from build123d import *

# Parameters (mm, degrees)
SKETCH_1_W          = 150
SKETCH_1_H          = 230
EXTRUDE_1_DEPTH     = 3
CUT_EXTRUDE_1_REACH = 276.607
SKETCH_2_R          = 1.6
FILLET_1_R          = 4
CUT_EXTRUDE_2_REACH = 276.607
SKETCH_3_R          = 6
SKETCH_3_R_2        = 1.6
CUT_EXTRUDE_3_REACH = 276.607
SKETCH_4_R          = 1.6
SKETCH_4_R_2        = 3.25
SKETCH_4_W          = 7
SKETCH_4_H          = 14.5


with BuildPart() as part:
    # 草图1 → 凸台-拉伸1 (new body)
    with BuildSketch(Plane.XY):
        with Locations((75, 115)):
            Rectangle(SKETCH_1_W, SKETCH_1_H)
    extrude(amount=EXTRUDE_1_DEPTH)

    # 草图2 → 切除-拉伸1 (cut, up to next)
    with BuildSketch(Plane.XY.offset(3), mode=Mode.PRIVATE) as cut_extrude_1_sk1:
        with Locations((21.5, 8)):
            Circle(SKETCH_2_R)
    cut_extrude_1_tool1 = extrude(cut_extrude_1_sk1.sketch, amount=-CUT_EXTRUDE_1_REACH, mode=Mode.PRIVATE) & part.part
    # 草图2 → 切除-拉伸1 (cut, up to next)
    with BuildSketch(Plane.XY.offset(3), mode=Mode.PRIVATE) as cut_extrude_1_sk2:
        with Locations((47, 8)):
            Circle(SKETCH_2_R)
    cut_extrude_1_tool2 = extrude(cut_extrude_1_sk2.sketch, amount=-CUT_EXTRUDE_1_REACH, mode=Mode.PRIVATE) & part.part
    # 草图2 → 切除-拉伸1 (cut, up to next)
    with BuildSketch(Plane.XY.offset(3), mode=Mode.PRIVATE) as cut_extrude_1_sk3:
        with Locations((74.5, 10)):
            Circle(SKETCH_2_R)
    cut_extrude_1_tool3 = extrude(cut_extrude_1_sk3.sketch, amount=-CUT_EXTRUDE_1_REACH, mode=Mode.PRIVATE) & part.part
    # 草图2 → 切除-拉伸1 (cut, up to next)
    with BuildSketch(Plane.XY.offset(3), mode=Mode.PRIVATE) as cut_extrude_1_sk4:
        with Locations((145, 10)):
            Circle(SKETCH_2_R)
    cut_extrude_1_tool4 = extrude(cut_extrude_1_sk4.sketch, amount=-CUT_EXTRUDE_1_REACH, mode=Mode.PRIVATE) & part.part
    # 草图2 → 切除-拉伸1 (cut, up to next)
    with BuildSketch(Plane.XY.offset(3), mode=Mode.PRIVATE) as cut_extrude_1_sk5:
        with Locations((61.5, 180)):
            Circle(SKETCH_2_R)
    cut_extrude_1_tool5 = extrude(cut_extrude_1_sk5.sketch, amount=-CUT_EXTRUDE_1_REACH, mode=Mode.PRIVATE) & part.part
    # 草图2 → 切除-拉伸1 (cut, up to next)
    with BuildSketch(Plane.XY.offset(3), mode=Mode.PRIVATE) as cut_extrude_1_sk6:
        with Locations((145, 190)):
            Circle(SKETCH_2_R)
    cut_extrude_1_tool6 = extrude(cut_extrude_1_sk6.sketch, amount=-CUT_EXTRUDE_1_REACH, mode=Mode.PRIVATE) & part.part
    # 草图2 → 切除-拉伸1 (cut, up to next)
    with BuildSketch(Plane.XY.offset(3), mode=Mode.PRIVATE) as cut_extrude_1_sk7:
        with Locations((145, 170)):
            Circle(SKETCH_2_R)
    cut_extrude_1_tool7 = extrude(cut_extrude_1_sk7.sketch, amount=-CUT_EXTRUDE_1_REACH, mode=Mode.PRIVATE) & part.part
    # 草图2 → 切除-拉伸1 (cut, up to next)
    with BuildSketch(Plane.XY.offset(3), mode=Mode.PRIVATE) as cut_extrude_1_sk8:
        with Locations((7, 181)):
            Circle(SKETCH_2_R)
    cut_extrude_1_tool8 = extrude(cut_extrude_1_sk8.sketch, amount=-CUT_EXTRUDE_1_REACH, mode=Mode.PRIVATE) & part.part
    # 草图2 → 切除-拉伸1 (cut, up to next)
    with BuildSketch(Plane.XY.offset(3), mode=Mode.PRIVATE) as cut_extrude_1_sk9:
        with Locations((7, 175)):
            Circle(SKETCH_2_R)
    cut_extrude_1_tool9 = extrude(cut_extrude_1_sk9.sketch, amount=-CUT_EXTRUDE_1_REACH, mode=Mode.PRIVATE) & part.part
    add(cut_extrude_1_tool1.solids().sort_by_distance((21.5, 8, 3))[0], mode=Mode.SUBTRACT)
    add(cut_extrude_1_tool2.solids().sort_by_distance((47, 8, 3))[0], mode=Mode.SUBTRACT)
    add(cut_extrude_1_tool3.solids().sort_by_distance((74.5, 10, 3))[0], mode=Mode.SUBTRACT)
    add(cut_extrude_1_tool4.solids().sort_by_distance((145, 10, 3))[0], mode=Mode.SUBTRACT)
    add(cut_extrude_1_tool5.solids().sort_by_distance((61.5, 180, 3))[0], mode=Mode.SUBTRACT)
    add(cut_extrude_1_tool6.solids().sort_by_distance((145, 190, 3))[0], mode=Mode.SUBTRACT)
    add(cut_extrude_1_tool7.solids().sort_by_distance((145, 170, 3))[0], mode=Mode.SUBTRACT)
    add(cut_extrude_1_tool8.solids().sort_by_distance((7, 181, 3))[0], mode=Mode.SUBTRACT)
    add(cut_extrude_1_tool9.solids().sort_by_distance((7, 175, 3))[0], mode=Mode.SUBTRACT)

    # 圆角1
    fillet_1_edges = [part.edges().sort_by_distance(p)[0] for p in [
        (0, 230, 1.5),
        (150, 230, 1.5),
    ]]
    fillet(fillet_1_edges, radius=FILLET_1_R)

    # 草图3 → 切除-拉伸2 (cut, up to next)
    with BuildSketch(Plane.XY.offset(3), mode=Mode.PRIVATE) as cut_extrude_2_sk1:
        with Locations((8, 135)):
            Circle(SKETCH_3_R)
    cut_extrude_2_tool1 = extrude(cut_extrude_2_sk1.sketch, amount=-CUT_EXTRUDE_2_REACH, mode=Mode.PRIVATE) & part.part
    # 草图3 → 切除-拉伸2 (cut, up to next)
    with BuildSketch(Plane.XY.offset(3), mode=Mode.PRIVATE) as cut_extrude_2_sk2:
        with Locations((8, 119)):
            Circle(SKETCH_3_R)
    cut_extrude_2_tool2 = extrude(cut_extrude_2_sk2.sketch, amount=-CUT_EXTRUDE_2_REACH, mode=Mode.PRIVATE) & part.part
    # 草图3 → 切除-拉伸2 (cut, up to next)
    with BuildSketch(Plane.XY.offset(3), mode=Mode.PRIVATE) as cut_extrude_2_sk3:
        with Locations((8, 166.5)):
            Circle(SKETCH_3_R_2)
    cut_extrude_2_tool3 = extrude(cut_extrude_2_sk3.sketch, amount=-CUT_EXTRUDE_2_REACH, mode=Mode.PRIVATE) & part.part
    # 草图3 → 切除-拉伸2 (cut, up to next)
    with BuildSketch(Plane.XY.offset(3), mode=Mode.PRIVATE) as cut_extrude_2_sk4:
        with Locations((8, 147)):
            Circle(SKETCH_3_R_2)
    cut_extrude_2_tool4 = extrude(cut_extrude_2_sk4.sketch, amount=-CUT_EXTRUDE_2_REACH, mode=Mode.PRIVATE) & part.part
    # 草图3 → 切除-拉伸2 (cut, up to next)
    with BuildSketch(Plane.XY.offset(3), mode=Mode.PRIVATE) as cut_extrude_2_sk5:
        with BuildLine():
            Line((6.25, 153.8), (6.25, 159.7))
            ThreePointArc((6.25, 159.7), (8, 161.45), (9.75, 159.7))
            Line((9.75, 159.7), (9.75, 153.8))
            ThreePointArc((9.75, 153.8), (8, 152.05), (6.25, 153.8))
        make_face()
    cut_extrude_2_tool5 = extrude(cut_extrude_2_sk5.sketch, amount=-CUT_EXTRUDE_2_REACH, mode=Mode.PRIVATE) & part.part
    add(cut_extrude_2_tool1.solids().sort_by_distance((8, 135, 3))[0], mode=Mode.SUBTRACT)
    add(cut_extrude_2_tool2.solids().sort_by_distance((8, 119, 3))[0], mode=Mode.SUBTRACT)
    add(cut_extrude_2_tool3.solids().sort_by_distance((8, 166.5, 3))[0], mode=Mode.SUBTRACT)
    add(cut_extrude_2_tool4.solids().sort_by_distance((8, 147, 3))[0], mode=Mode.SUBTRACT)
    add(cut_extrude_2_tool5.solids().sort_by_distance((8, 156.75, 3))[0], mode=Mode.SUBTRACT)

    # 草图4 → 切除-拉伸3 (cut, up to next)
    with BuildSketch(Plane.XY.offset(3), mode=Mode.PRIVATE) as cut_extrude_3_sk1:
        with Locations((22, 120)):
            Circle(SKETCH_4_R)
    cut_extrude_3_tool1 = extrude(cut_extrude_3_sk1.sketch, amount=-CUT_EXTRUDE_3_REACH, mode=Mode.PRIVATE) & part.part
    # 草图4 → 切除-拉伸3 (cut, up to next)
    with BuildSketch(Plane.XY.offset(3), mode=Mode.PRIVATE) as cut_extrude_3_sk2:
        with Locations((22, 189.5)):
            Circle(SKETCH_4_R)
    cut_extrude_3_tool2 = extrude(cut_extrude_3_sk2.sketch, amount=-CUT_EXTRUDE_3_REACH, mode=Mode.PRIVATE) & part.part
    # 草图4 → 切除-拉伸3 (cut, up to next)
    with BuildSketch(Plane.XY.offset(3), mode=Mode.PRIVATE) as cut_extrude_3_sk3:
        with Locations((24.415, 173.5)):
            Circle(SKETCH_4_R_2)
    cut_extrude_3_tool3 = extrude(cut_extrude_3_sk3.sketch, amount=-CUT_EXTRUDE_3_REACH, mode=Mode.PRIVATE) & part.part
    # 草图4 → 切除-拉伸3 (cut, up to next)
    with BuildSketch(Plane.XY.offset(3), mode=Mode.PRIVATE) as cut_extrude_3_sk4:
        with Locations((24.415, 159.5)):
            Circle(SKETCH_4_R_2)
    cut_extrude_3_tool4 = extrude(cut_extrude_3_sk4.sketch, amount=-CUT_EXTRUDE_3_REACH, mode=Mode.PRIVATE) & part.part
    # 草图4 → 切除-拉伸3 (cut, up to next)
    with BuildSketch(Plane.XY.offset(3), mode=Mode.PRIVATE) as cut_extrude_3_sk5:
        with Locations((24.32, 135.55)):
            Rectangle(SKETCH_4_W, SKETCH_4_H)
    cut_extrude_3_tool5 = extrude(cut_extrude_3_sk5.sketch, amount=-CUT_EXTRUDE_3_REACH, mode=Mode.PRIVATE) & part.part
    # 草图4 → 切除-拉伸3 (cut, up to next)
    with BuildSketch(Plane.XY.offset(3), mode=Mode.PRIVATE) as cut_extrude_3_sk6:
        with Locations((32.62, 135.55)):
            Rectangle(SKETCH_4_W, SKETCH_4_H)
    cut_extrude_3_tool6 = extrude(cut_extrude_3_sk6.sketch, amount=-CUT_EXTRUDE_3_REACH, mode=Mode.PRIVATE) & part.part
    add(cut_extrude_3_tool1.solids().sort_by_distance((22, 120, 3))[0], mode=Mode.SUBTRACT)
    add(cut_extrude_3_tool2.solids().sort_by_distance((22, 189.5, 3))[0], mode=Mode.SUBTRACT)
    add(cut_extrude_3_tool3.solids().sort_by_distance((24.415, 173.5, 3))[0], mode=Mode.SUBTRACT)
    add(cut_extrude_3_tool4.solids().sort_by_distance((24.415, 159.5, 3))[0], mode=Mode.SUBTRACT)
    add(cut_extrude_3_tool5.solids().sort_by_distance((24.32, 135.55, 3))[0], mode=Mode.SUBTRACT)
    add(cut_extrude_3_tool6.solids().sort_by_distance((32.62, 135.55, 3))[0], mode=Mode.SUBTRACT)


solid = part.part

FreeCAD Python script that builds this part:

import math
import FreeCAD as App
import Part
import Sketcher
from FreeCAD import Vector


def edges_at(feature, points):
    """Names of the edges that pass closest to the given points."""
    edges = feature.Shape.Edges
    near = lambda p: min(range(len(edges)), key=lambda i: edges[i].distToShape(Part.Vertex(*p))[0])
    return sorted({f"Edge{near(p) + 1}" for p in points})


def add_polygon(sketch, points):
    """Adds a closed chain of lines whose ends are joined by coincident constraints."""
    first, n = sketch.GeometryCount, len(points)
    for a, b in zip(points, points[1:] + points[:1]):
        sketch.addGeometry(Part.LineSegment(App.Vector(*a, 0), App.Vector(*b, 0)), False)
    for i in range(n):
        sketch.addConstraint(Sketcher.Constraint("Coincident", first + i, 2, first + (i + 1) % n, 1))

doc = App.newDocument("Part")
body = doc.addObject("PartDesign::Body", "Body")

sketch1 = doc.addObject("Sketcher::SketchObject", "Sketch")
body.addObject(sketch1)
sketch1.AttachmentSupport = (doc.XY_Plane, [""])
sketch1.MapMode = "FlatFace"
add_polygon(sketch1, [(0, 230), (0, 0), (150, 0), (150, 230)])
sketch1.addConstraint(Sketcher.Constraint("Vertical", 0))
sketch1.addConstraint(Sketcher.Constraint("Horizontal", 1))
sketch1.addConstraint(Sketcher.Constraint("Vertical", 2))
sketch1.addConstraint(Sketcher.Constraint("Horizontal", 3))
sketch1.addConstraint(Sketcher.Constraint("Coincident", 0, 2, -1, 1))
sketch1.addConstraint(Sketcher.Constraint("DistanceX", 1, 1, 1, 2, 150.0))
sketch1.addConstraint(Sketcher.Constraint("DistanceY", 0, 2, 0, 1, 230.0))
pad1 = doc.addObject("PartDesign::Pad", "Pad")
body.addObject(pad1)
pad1.Profile = sketch1
pad1.Length = 3

sketch2 = doc.addObject("Sketcher::SketchObject", "Sketch001")
body.addObject(sketch2)
sketch2.AttachmentSupport = (doc.XY_Plane, [""])
sketch2.MapMode = "FlatFace"
sketch2.AttachmentOffset = App.Placement(Vector(0, 0, 3), App.Rotation())
sketch2.addGeometry(Part.Circle(Vector(21.5, 8, 0), Vector(0, 0, 1), 1.6), False)
sketch2.addConstraint(Sketcher.Constraint("Diameter", 0, 3.2))
sketch2.addConstraint(Sketcher.Constraint("DistanceY", -1, 1, 0, 3, 8.0))
sketch2.addConstraint(Sketcher.Constraint("DistanceX", -1, 1, 0, 3, 21.5))
pocket1 = doc.addObject("PartDesign::Pocket", "Pocket")
body.addObject(pocket1)
pocket1.Profile = sketch2
pocket1.Type = "UpToFirst"

sketch3 = doc.addObject("Sketcher::SketchObject", "Sketch002")
body.addObject(sketch3)
sketch3.AttachmentSupport = (doc.XY_Plane, [""])
sketch3.MapMode = "FlatFace"
sketch3.AttachmentOffset = App.Placement(Vector(0, 0, 3), App.Rotation())
sketch3.addGeometry(Part.Circle(Vector(47, 8, 0), Vector(0, 0, 1), 1.6), False)
sketch3.addConstraint(Sketcher.Constraint("Diameter", 0, 3.2))
sketch3.addConstraint(Sketcher.Constraint("DistanceX", -1, 1, 0, 3, 47.0))
sketch3.addConstraint(Sketcher.Constraint("DistanceY", -1, 1, 0, 3, 8.0))
pocket2 = doc.addObject("PartDesign::Pocket", "Pocket001")
body.addObject(pocket2)
pocket2.Profile = sketch3
pocket2.Type = "UpToFirst"

sketch4 = doc.addObject("Sketcher::SketchObject", "Sketch003")
body.addObject(sketch4)
sketch4.AttachmentSupport = (doc.XY_Plane, [""])
sketch4.MapMode = "FlatFace"
sketch4.AttachmentOffset = App.Placement(Vector(0, 0, 3), App.Rotation())
sketch4.addGeometry(Part.Circle(Vector(74.5, 10, 0), Vector(0, 0, 1), 1.6), False)
sketch4.addConstraint(Sketcher.Constraint("Diameter", 0, 3.2))
sketch4.addConstraint(Sketcher.Constraint("DistanceY", -1, 1, 0, 3, 10.0))
sketch4.addConstraint(Sketcher.Constraint("DistanceX", -1, 1, 0, 3, 74.5))
pocket3 = doc.addObject("PartDesign::Pocket", "Pocket002")
body.addObject(pocket3)
pocket3.Profile = sketch4
pocket3.Type = "UpToFirst"

sketch5 = doc.addObject("Sketcher::SketchObject", "Sketch004")
body.addObject(sketch5)
sketch5.AttachmentSupport = (doc.XY_Plane, [""])
sketch5.MapMode = "FlatFace"
sketch5.AttachmentOffset = App.Placement(Vector(0, 0, 3), App.Rotation())
sketch5.addGeometry(Part.Circle(Vector(145, 10, 0), Vector(0, 0, 1), 1.6), False)
sketch5.addConstraint(Sketcher.Constraint("Diameter", 0, 3.2))
sketch5.addConstraint(Sketcher.Constraint("DistanceX", -1, 1, 0, 3, 145.0))
sketch5.addConstraint(Sketcher.Constraint("DistanceY", -1, 1, 0, 3, 10.0))
pocket4 = doc.addObject("PartDesign::Pocket", "Pocket003")
body.addObject(pocket4)
pocket4.Profile = sketch5
pocket4.Type = "UpToFirst"

sketch6 = doc.addObject("Sketcher::SketchObject", "Sketch005")
body.addObject(sketch6)
sketch6.AttachmentSupport = (doc.XY_Plane, [""])
sketch6.MapMode = "FlatFace"
sketch6.AttachmentOffset = App.Placement(Vector(0, 0, 3), App.Rotation())
sketch6.addGeometry(Part.Circle(Vector(61.5, 180, 0), Vector(0, 0, 1), 1.6), False)
sketch6.addConstraint(Sketcher.Constraint("Diameter", 0, 3.2))
sketch6.addConstraint(Sketcher.Constraint("DistanceY", -1, 1, 0, 3, 180.0))
sketch6.addConstraint(Sketcher.Constraint("DistanceX", -1, 1, 0, 3, 61.5))
pocket5 = doc.addObject("PartDesign::Pocket", "Pocket004")
body.addObject(pocket5)
pocket5.Profile = sketch6
pocket5.Type = "UpToFirst"

sketch7 = doc.addObject("Sketcher::SketchObject", "Sketch006")
body.addObject(sketch7)
sketch7.AttachmentSupport = (doc.XY_Plane, [""])
sketch7.MapMode = "FlatFace"
sketch7.AttachmentOffset = App.Placement(Vector(0, 0, 3), App.Rotation())
sketch7.addGeometry(Part.Circle(Vector(145, 190, 0), Vector(0, 0, 1), 1.6), False)
sketch7.addConstraint(Sketcher.Constraint("Diameter", 0, 3.2))
sketch7.addConstraint(Sketcher.Constraint("DistanceX", -1, 1, 0, 3, 145.0))
sketch7.addConstraint(Sketcher.Constraint("DistanceY", -1, 1, 0, 3, 190.0))
pocket6 = doc.addObject("PartDesign::Pocket", "Pocket005")
body.addObject(pocket6)
pocket6.Profile = sketch7
pocket6.Type = "UpToFirst"

sketch8 = doc.addObject("Sketcher::SketchObject", "Sketch007")
body.addObject(sketch8)
sketch8.AttachmentSupport = (doc.XY_Plane, [""])
sketch8.MapMode = "FlatFace"
sketch8.AttachmentOffset = App.Placement(Vector(0, 0, 3), App.Rotation())
sketch8.addGeometry(Part.Circle(Vector(145, 170, 0), Vector(0, 0, 1), 1.6), False)
sketch8.addConstraint(Sketcher.Constraint("Diameter", 0, 3.2))
sketch8.addConstraint(Sketcher.Constraint("DistanceX", -1, 1, 0, 3, 145.0))
sketch8.addConstraint(Sketcher.Constraint("DistanceY", -1, 1, 0, 3, 170.0))
pocket7 = doc.addObject("PartDesign::Pocket", "Pocket006")
body.addObject(pocket7)
pocket7.Profile = sketch8
pocket7.Type = "UpToFirst"

sketch9 = doc.addObject("Sketcher::SketchObject", "Sketch008")
body.addObject(sketch9)
sketch9.AttachmentSupport = (doc.XY_Plane, [""])
sketch9.MapMode = "FlatFace"
sketch9.AttachmentOffset = App.Placement(Vector(0, 0, 3), App.Rotation())
sketch9.addGeometry(Part.Circle(Vector(7, 181, 0), Vector(0, 0, 1), 1.6), False)
sketch9.addConstraint(Sketcher.Constraint("Diameter", 0, 3.2))
sketch9.addConstraint(Sketcher.Constraint("DistanceX", -1, 1, 0, 3, 7.0))
sketch9.addConstraint(Sketcher.Constraint("DistanceY", -1, 1, 0, 3, 181.0))
pocket8 = doc.addObject("PartDesign::Pocket", "Pocket007")
body.addObject(pocket8)
pocket8.Profile = sketch9
pocket8.Type = "UpToFirst"

sketch10 = doc.addObject("Sketcher::SketchObject", "Sketch009")
body.addObject(sketch10)
sketch10.AttachmentSupport = (doc.XY_Plane, [""])
sketch10.MapMode = "FlatFace"
sketch10.AttachmentOffset = App.Placement(Vector(0, 0, 3), App.Rotation())
sketch10.addGeometry(Part.Circle(Vector(7, 175, 0), Vector(0, 0, 1), 1.6), False)
sketch10.addConstraint(Sketcher.Constraint("Diameter", 0, 3.2))
sketch10.addConstraint(Sketcher.Constraint("DistanceX", -1, 1, 0, 3, 7.0))
sketch10.addConstraint(Sketcher.Constraint("DistanceY", -1, 1, 0, 3, 175.0))
pocket9 = doc.addObject("PartDesign::Pocket", "Pocket008")
body.addObject(pocket9)
pocket9.Profile = sketch10
pocket9.Type = "UpToFirst"
doc.recompute()

fillet = doc.addObject("PartDesign::Fillet", "Fillet")
body.addObject(fillet)
fillet.Base = (pocket9, edges_at(pocket9, [(0, 230, 1.5), (150, 230, 1.5)]))
fillet.Radius = 4

sketch11 = doc.addObject("Sketcher::SketchObject", "Sketch010")
body.addObject(sketch11)
sketch11.AttachmentSupport = (doc.XY_Plane, [""])
sketch11.MapMode = "FlatFace"
sketch11.AttachmentOffset = App.Placement(Vector(0, 0, 3), App.Rotation())
sketch11.addGeometry(Part.Circle(Vector(8, 135, 0), Vector(0, 0, 1), 6), False)
sketch11.addConstraint(Sketcher.Constraint("Diameter", 0, 12.0))
sketch11.addConstraint(Sketcher.Constraint("DistanceX", -1, 1, 0, 3, 8.0))
sketch11.addConstraint(Sketcher.Constraint("DistanceY", -1, 1, 0, 3, 135.0))
pocket10 = doc.addObject("PartDesign::Pocket", "Pocket009")
body.addObject(pocket10)
pocket10.Profile = sketch11
pocket10.Type = "UpToFirst"

sketch12 = doc.addObject("Sketcher::SketchObject", "Sketch011")
body.addObject(sketch12)
sketch12.AttachmentSupport = (doc.XY_Plane, [""])
sketch12.MapMode = "FlatFace"
sketch12.AttachmentOffset = App.Placement(Vector(0, 0, 3), App.Rotation())
sketch12.addGeometry(Part.Circle(Vector(8, 119, 0), Vector(0, 0, 1), 6), False)
sketch12.addConstraint(Sketcher.Constraint("Diameter", 0, 12.0))
sketch12.addConstraint(Sketcher.Constraint("DistanceX", -1, 1, 0, 3, 8.0))
sketch12.addConstraint(Sketcher.Constraint("DistanceY", -1, 1, 0, 3, 119.0))
pocket11 = doc.addObject("PartDesign::Pocket", "Pocket010")
body.addObject(pocket11)
pocket11.Profile = sketch12
pocket11.Type = "UpToFirst"

sketch13 = doc.addObject("Sketcher::SketchObject", "Sketch012")
body.addObject(sketch13)
sketch13.AttachmentSupport = (doc.XY_Plane, [""])
sketch13.MapMode = "FlatFace"
sketch13.AttachmentOffset = App.Placement(Vector(0, 0, 3), App.Rotation())
sketch13.addGeometry(Part.Circle(Vector(8, 166.5, 0), Vector(0, 0, 1), 1.6), False)
sketch13.addConstraint(Sketcher.Constraint("Diameter", 0, 3.2))
sketch13.addConstraint(Sketcher.Constraint("DistanceX", -1, 1, 0, 3, 8.0))
sketch13.addConstraint(Sketcher.Constraint("DistanceY", -1, 1, 0, 3, 166.5))
pocket12 = doc.addObject("PartDesign::Pocket", "Pocket011")
body.addObject(pocket12)
pocket12.Profile = sketch13
pocket12.Type = "UpToFirst"

sketch14 = doc.addObject("Sketcher::SketchObject", "Sketch013")
body.addObject(sketch14)
sketch14.AttachmentSupport = (doc.XY_Plane, [""])
sketch14.MapMode = "FlatFace"
sketch14.AttachmentOffset = App.Placement(Vector(0, 0, 3), App.Rotation())
sketch14.addGeometry(Part.Circle(Vector(8, 147, 0), Vector(0, 0, 1), 1.6), False)
sketch14.addConstraint(Sketcher.Constraint("Diameter", 0, 3.2))
sketch14.addConstraint(Sketcher.Constraint("DistanceX", -1, 1, 0, 3, 8.0))
sketch14.addConstraint(Sketcher.Constraint("DistanceY", -1, 1, 0, 3, 147.0))
pocket13 = doc.addObject("PartDesign::Pocket", "Pocket012")
body.addObject(pocket13)
pocket13.Profile = sketch14
pocket13.Type = "UpToFirst"

sketch15 = doc.addObject("Sketcher::SketchObject", "Sketch014")
body.addObject(sketch15)
sketch15.AttachmentSupport = (doc.XY_Plane, [""])
sketch15.MapMode = "FlatFace"
sketch15.AttachmentOffset = App.Placement(Vector(0, 0, 3), App.Rotation())
sketch15.addGeometry(Part.LineSegment(Vector(6.2, 159.7, 0), Vector(6.2, 153.8, 0)), False)
sketch15.addGeometry(Part.ArcOfCircle(Part.Circle(Vector(8, 153.8, 0), Vector(0, 0, 1), 1.8), math.radians(180), math.radians(360)), False)
sketch15.addGeometry(Part.LineSegment(Vector(9.8, 153.8, 0), Vector(9.8, 159.7, 0)), False)
sketch15.addGeometry(Part.ArcOfCircle(Part.Circle(Vector(8, 159.7, 0), Vector(0, 0, 1), 1.8), math.radians(0), math.radians(180)), False)
sketch15.addConstraint(Sketcher.Constraint("Tangent", 0, 2, 1, 1))
sketch15.addConstraint(Sketcher.Constraint("Tangent", 1, 2, 2, 1))
sketch15.addConstraint(Sketcher.Constraint("Tangent", 2, 2, 3, 1))
sketch15.addConstraint(Sketcher.Constraint("Tangent", 3, 2, 0, 1))
sketch15.addConstraint(Sketcher.Constraint("Vertical", 0))
sketch15.addConstraint(Sketcher.Constraint("Vertical", 2))
sketch15.addConstraint(Sketcher.Constraint("Radius", 1, 1.75))
sketch15.addConstraint(Sketcher.Constraint("DistanceY", 0, 2, 0, 1, 5.9))
sketch15.addConstraint(Sketcher.Constraint("DistanceX", -1, 1, 1, 3, 8.0))
sketch15.addConstraint(Sketcher.Constraint("DistanceY", -1, 1, 1, 3, 153.8))
pocket14 = doc.addObject("PartDesign::Pocket", "Pocket013")
body.addObject(pocket14)
pocket14.Profile = sketch15
pocket14.Type = "UpToFirst"

sketch16 = doc.addObject("Sketcher::SketchObject", "Sketch015")
body.addObject(sketch16)
sketch16.AttachmentSupport = (doc.XY_Plane, [""])
sketch16.MapMode = "FlatFace"
sketch16.AttachmentOffset = App.Placement(Vector(0, 0, 3), App.Rotation())
sketch16.addGeometry(Part.Circle(Vector(22, 120, 0), Vector(0, 0, 1), 1.6), False)
sketch16.addConstraint(Sketcher.Constraint("Diameter", 0, 3.2))
sketch16.addConstraint(Sketcher.Constraint("DistanceX", -1, 1, 0, 3, 22.0))
sketch16.addConstraint(Sketcher.Constraint("DistanceY", -1, 1, 0, 3, 120.0))
pocket15 = doc.addObject("PartDesign::Pocket", "Pocket014")
body.addObject(pocket15)
pocket15.Profile = sketch16
pocket15.Type = "UpToFirst"

sketch17 = doc.addObject("Sketcher::SketchObject", "Sketch016")
body.addObject(sketch17)
sketch17.AttachmentSupport = (doc.XY_Plane, [""])
sketch17.MapMode = "FlatFace"
sketch17.AttachmentOffset = App.Placement(Vector(0, 0, 3), App.Rotation())
sketch17.addGeometry(Part.Circle(Vector(22, 189.5, 0), Vector(0, 0, 1), 1.6), False)
sketch17.addConstraint(Sketcher.Constraint("Diameter", 0, 3.2))
sketch17.addConstraint(Sketcher.Constraint("DistanceX", -1, 1, 0, 3, 22.0))
sketch17.addConstraint(Sketcher.Constraint("DistanceY", -1, 1, 0, 3, 189.5))
pocket16 = doc.addObject("PartDesign::Pocket", "Pocket015")
body.addObject(pocket16)
pocket16.Profile = sketch17
pocket16.Type = "UpToFirst"

sketch18 = doc.addObject("Sketcher::SketchObject", "Sketch017")
body.addObject(sketch18)
sketch18.AttachmentSupport = (doc.XY_Plane, [""])
sketch18.MapMode = "FlatFace"
sketch18.AttachmentOffset = App.Placement(Vector(0, 0, 3), App.Rotation())
sketch18.addGeometry(Part.Circle(Vector(24.4, 173.5, 0), Vector(0, 0, 1), 3.2), False)
sketch18.addConstraint(Sketcher.Constraint("Diameter", 0, 6.5))
sketch18.addConstraint(Sketcher.Constraint("DistanceY", -1, 1, 0, 3, 173.5))
sketch18.addConstraint(Sketcher.Constraint("DistanceX", -1, 1, 0, 3, 24.415))
pocket17 = doc.addObject("PartDesign::Pocket", "Pocket016")
body.addObject(pocket17)
pocket17.Profile = sketch18
pocket17.Type = "UpToFirst"

sketch19 = doc.addObject("Sketcher::SketchObject", "Sketch018")
body.addObject(sketch19)
sketch19.AttachmentSupport = (doc.XY_Plane, [""])
sketch19.MapMode = "FlatFace"
sketch19.AttachmentOffset = App.Placement(Vector(0, 0, 3), App.Rotation())
sketch19.addGeometry(Part.Circle(Vector(24.4, 159.5, 0), Vector(0, 0, 1), 3.2), False)
sketch19.addConstraint(Sketcher.Constraint("Diameter", 0, 6.5))
sketch19.addConstraint(Sketcher.Constraint("DistanceY", -1, 1, 0, 3, 159.5))
sketch19.addConstraint(Sketcher.Constraint("DistanceX", -1, 1, 0, 3, 24.415))
pocket18 = doc.addObject("PartDesign::Pocket", "Pocket017")
body.addObject(pocket18)
pocket18.Profile = sketch19
pocket18.Type = "UpToFirst"

sketch20 = doc.addObject("Sketcher::SketchObject", "Sketch019")
body.addObject(sketch20)
sketch20.AttachmentSupport = (doc.XY_Plane, [""])
sketch20.MapMode = "FlatFace"
sketch20.AttachmentOffset = App.Placement(Vector(0, 0, 3), App.Rotation())
add_polygon(sketch20, [(21, 143), (21, 128), (28, 128), (28, 143)])
sketch20.addConstraint(Sketcher.Constraint("Vertical", 0))
sketch20.addConstraint(Sketcher.Constraint("Horizontal", 1))
sketch20.addConstraint(Sketcher.Constraint("Vertical", 2))
sketch20.addConstraint(Sketcher.Constraint("Horizontal", 3))
sketch20.addConstraint(Sketcher.Constraint("DistanceX", 1, 1, 1, 2, 7.0))
sketch20.addConstraint(Sketcher.Constraint("DistanceY", 0, 2, 0, 1, 14.5))
sketch20.addConstraint(Sketcher.Constraint("DistanceY", -1, 1, 0, 2, 128.3))
sketch20.addConstraint(Sketcher.Constraint("DistanceX", -1, 1, 0, 2, 20.82))
pocket19 = doc.addObject("PartDesign::Pocket", "Pocket018")
body.addObject(pocket19)
pocket19.Profile = sketch20
pocket19.Type = "UpToFirst"

sketch21 = doc.addObject("Sketcher::SketchObject", "Sketch020")
body.addObject(sketch21)
sketch21.AttachmentSupport = (doc.XY_Plane, [""])
sketch21.MapMode = "FlatFace"
sketch21.AttachmentOffset = App.Placement(Vector(0, 0, 3), App.Rotation())
add_polygon(sketch21, [(29, 143), (29, 128), (36, 128), (36, 143)])
sketch21.addConstraint(Sketcher.Constraint("Vertical", 0))
sketch21.addConstraint(Sketcher.Constraint("Horizontal", 1))
sketch21.addConstraint(Sketcher.Constraint("Vertical", 2))
sketch21.addConstraint(Sketcher.Constraint("Horizontal", 3))
sketch21.addConstraint(Sketcher.Constraint("DistanceX", 1, 1, 1, 2, 7.0))
sketch21.addConstraint(Sketcher.Constraint("DistanceY", 0, 2, 0, 1, 14.5))
sketch21.addConstraint(Sketcher.Constraint("DistanceY", -1, 1, 0, 2, 128.3))
sketch21.addConstraint(Sketcher.Constraint("DistanceX", -1, 1, 0, 2, 29.12))
pocket20 = doc.addObject("PartDesign::Pocket", "Pocket019")
body.addObject(pocket20)
pocket20.Profile = sketch21
pocket20.Type = "UpToFirst"

doc.recompute()
